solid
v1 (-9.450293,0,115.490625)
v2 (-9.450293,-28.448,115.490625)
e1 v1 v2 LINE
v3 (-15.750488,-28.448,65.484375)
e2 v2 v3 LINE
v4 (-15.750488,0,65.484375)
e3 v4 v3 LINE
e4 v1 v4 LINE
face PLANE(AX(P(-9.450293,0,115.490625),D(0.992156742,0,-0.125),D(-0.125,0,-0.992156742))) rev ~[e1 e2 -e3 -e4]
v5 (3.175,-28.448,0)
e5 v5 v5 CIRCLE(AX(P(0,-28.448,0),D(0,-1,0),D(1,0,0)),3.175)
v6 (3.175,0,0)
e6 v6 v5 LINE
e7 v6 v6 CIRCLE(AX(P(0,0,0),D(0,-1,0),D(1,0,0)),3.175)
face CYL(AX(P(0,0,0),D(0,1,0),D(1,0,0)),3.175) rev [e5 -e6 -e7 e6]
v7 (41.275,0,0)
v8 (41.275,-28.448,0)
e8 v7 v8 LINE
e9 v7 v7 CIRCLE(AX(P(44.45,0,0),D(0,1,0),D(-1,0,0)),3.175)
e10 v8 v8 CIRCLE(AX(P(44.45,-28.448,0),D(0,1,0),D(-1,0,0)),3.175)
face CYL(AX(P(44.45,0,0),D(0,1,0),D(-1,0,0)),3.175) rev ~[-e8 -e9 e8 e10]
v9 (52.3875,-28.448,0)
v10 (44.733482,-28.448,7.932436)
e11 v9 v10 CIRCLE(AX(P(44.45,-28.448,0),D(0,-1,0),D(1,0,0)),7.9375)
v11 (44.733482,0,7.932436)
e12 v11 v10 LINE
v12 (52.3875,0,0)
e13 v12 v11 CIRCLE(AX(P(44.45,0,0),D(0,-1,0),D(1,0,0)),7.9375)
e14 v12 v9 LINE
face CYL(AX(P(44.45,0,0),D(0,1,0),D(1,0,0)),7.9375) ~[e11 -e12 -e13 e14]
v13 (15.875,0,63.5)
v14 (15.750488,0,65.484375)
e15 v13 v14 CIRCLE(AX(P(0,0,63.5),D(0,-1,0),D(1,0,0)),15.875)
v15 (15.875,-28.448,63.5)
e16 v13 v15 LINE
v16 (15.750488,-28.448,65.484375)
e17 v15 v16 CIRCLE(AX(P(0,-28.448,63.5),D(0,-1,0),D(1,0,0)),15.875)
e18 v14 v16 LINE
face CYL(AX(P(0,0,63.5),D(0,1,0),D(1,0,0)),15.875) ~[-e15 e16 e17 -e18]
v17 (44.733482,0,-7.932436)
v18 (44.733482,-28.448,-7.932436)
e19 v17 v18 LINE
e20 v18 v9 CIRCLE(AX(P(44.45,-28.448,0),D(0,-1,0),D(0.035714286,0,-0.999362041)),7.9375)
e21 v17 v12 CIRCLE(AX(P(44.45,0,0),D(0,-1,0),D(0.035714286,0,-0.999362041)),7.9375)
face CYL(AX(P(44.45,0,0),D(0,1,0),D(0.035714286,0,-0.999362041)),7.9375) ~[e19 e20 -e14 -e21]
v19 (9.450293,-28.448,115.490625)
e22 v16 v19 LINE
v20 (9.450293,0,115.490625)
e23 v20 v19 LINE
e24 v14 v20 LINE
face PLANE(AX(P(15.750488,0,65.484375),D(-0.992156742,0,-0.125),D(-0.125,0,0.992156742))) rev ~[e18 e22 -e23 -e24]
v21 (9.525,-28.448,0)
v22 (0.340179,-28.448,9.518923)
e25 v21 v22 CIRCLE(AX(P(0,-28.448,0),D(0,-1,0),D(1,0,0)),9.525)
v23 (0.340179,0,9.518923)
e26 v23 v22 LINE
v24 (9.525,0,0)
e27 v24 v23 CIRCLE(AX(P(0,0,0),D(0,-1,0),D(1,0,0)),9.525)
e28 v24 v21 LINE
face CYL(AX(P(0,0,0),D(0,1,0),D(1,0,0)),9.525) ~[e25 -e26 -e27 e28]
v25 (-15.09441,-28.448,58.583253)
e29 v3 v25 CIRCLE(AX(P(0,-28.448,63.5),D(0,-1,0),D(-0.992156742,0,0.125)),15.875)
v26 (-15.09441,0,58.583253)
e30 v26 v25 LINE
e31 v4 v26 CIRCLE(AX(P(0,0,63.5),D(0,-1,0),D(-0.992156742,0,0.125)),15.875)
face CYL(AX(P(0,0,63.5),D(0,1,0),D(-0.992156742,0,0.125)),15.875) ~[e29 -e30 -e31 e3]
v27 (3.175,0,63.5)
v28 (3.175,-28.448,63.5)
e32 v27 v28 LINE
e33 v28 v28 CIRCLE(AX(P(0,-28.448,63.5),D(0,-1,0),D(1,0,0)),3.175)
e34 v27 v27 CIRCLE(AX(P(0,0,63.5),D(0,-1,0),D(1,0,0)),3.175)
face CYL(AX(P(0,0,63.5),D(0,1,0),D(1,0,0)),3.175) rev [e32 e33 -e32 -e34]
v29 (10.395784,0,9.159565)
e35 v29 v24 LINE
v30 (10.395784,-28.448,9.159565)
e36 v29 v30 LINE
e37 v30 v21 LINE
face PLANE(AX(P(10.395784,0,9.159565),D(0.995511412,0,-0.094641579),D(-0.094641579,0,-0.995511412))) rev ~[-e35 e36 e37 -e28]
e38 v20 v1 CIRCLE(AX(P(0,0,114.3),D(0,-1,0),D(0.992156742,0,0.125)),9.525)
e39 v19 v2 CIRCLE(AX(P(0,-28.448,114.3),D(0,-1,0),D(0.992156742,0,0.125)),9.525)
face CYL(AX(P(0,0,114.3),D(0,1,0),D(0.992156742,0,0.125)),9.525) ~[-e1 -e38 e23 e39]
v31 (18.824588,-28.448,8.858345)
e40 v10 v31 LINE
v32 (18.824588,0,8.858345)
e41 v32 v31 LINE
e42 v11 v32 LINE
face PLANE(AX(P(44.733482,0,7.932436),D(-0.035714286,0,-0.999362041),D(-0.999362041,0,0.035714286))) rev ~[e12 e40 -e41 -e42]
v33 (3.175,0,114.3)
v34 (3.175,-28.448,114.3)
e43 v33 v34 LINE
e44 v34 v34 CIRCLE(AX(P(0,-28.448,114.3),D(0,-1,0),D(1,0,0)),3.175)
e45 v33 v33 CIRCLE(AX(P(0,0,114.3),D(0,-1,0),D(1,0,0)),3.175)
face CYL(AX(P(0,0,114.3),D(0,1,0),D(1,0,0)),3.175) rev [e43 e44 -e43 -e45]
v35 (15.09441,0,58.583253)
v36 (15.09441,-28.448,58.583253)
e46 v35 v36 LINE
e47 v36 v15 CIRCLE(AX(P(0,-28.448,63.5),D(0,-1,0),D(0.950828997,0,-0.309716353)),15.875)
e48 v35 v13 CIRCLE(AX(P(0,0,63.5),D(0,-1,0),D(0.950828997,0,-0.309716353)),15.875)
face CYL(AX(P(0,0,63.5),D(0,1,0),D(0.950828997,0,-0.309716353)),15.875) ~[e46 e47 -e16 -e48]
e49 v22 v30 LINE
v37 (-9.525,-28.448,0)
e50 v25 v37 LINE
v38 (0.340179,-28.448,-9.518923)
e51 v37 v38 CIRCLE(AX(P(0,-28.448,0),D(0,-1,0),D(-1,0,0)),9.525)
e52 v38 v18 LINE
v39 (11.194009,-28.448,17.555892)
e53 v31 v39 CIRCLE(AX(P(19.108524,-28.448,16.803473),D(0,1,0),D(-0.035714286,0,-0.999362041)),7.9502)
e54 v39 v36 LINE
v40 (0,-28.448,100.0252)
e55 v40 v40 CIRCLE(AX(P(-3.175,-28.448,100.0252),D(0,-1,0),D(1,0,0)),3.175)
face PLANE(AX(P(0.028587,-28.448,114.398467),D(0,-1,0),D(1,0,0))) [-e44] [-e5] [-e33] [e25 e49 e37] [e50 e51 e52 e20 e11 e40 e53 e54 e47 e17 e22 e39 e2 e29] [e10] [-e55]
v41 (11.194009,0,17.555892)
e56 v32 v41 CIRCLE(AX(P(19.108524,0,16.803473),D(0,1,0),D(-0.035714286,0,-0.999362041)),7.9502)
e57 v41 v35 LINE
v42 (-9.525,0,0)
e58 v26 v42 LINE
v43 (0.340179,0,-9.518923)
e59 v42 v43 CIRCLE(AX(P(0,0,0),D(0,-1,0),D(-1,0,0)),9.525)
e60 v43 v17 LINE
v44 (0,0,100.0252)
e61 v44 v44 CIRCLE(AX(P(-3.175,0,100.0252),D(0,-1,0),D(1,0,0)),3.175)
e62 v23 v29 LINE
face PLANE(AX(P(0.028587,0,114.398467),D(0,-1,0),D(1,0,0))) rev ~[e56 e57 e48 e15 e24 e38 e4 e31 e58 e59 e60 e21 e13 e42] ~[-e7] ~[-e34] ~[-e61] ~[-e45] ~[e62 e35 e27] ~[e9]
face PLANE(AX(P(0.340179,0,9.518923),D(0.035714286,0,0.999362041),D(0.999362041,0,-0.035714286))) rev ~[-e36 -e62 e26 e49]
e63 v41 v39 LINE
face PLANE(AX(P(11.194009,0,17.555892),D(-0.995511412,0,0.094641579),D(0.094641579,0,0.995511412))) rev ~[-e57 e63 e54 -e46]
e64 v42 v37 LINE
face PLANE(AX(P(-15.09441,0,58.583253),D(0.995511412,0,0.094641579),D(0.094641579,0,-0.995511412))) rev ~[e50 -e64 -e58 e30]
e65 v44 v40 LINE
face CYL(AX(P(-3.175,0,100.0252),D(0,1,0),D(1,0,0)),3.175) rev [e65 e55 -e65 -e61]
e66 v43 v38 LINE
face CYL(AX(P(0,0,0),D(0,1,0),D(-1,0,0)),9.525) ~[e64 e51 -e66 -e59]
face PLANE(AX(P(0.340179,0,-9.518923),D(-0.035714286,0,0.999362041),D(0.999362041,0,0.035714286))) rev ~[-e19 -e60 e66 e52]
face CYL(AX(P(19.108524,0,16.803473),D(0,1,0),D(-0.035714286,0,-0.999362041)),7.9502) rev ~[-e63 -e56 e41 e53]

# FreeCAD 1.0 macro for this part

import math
import FreeCAD as App
import Part
import Sketcher
from FreeCAD import Vector
Q = App.Units.Quantity

doc = App.newDocument("Part")
body = doc.addObject("PartDesign::Body", "Body")

sketch1 = body.newObject("Sketcher::SketchObject", "Sketch")
sketch1.AttachmentSupport = (doc.getObject("XZ_Plane"), [""])
sketch1.MapMode = "FlatFace"
sketch1.addGeometry([
    Part.ArcOfCircle(Part.Circle(Vector(0, 0, 0), Vector(0, 0, 1), 9.5), math.radians(180), math.radians(272)),
    Part.LineSegment(Vector(0.3, -9.5, 0), Vector(44.7, -7.9, 0)),
    Part.ArcOfCircle(Part.Circle(Vector(44.5, 0, 0), Vector(0, 0, 1), 7.9), math.radians(-88), math.radians(0)),
    Part.ArcOfCircle(Part.Circle(Vector(44.5, 0, 0), Vector(0, 0, 1), 7.9), math.radians(0), math.radians(88)),
    Part.LineSegment(Vector(44.7, 7.9, 0), Vector(18.8, 8.9, 0)),
    Part.ArcOfCircle(Part.Circle(Vector(19.1, 16.8, 0), Vector(0, 0, 1), 8), math.radians(175), math.radians(268)),
    Part.LineSegment(Vector(11.2, 17.6, 0), Vector(15.1, 58.6, 0)),
    Part.ArcOfCircle(Part.Circle(Vector(0, 63.5, 0), Vector(0, 0, 1), 15.9), math.radians(-18.04), math.radians(0)),
    Part.ArcOfCircle(Part.Circle(Vector(0, 63.5, 0), Vector(0, 0, 1), 15.9), math.radians(0), math.radians(7.18)),
    Part.LineSegment(Vector(15.8, 65.5, 0), Vector(9.5, 115.5, 0)),
    Part.ArcOfCircle(Part.Circle(Vector(0, 114.3, 0), Vector(0, 0, 1), 9.5), math.radians(7), math.radians(173)),
    Part.LineSegment(Vector(-9.5, 115.5, 0), Vector(-15.8, 65.5, 0)),
    Part.ArcOfCircle(Part.Circle(Vector(0, 63.5, 0), Vector(0, 0, 1), 15.9), math.radians(173), math.radians(198)),
    Part.LineSegment(Vector(-15.1, 58.6, 0), Vector(-9.5, 0, 0)),
    Part.Circle(Vector(0, 0, 0), Vector(0, 0, 1), 3.2),
    Part.LineSegment(Vector(10.4, 9.2, 0), Vector(9.5, 0, 0)),
    Part.ArcOfCircle(Part.Circle(Vector(0, 0, 0), Vector(0, 0, 1), 9.5), math.radians(0), math.radians(88)),
    Part.LineSegment(Vector(0.3, 9.5, 0), Vector(10.4, 9.2, 0)),
    Part.Circle(Vector(44.5, 0, 0), Vector(0, 0, 1), 3.2),
    Part.Circle(Vector(0, 63.5, 0), Vector(0, 0, 1), 3.2),
    Part.Circle(Vector(-3.2, 100, 0), Vector(0, 0, 1), 3.2),
    Part.Circle(Vector(0, 114.3, 0), Vector(0, 0, 1), 3.2),
], False)
sketch1.addConstraint([
    Sketcher.Constraint("Tangent", 0, 2, 1, 1),
    Sketcher.Constraint("Tangent", 1, 2, 2, 1),
    Sketcher.Constraint("Tangent", 2, 2, 3, 1),
    Sketcher.Constraint("Tangent", 3, 2, 4, 1),
    Sketcher.Constraint("Tangent", 4, 2, 5, 2),
    Sketcher.Constraint("Tangent", 5, 1, 6, 1),
    Sketcher.Constraint("Coincident", 6, 2, 7, 1),
    Sketcher.Constraint("Tangent", 7, 2, 8, 1),
    Sketcher.Constraint("Tangent", 8, 2, 9, 1),
    Sketcher.Constraint("Tangent", 9, 2, 10, 1),
    Sketcher.Constraint("Tangent", 10, 2, 11, 1),
    Sketcher.Constraint("Tangent", 11, 2, 12, 1),
    Sketcher.Constraint("Coincident", 12, 2, 13, 1),
    Sketcher.Constraint("Coincident", 13, 2, 0, 1),
    Sketcher.Constraint("Coincident", 15, 2, 16, 1),
    Sketcher.Constraint("Tangent", 16, 2, 17, 1),
    Sketcher.Constraint("Coincident", 17, 2, 15, 1),
    Sketcher.Constraint("Coincident", 0, 3, -1, 1),
    Sketcher.Constraint("Coincident", 14, 3, -1, 1),
    Sketcher.Constraint("Coincident", 16, 3, -1, 1),
    Sketcher.Constraint("Coincident", 12, 3, 7, 3),
    Sketcher.Constraint("Coincident", 18, 3, 2, 3),
    Sketcher.Constraint("Coincident", 19, 3, 7, 3),
    Sketcher.Constraint("Coincident", 21, 3, 10, 3),
    Sketcher.Constraint("Equal", 2, 3),
    Sketcher.Constraint("Equal", 7, 8),
    Sketcher.Constraint("Equal", 0, 10),
    Sketcher.Constraint("Equal", 8, 12),
    Sketcher.Constraint("Equal", 10, 16),
    Sketcher.Constraint("Equal", 14, 18),
    Sketcher.Constraint("Equal", 18, 19),
    Sketcher.Constraint("Equal", 19, 20),
    Sketcher.Constraint("Equal", 20, 21),
    Sketcher.Constraint("Symmetric", 9, 2, 10, 2, -2),
    Sketcher.Constraint("Symmetric", 1, 2, 3, 2, -1),
    Sketcher.Constraint("PointOnObject", 2, 2, -1),
    Sketcher.Constraint("PointOnObject", 13, 2, -1),
    Sketcher.Constraint("PointOnObject", 15, 2, -1),
    Sketcher.Constraint("Parallel", 6, 15),
    Sketcher.Constraint("Parallel", 4, 17),
    Sketcher.Constraint("Horizontal", 19, 3, 7, 2),
    Sketcher.Constraint("Horizontal", 6, 2, 12, 2),
    Sketcher.Constraint("Diameter", 14, Q("0.25 in")),
    Sketcher.Constraint("Radius", 0, Q("0.375 in")),
    Sketcher.Constraint("Radius", 2, Q("0.3125 in")),
    Sketcher.Constraint("Radius", 5, Q("0.313 in")),
    Sketcher.Constraint("Radius", 7, Q("0.625 in")),
    Sketcher.Constraint("DistanceY", 7, 3, 10, 3, Q("2 in")),
    Sketcher.Constraint("DistanceY", -1, 1, 7, 3, Q("2.5 in")),
    Sketcher.Constraint("DistanceX", -1, 1, 2, 3, Q("1.75 in")),
    Sketcher.Constraint("DistanceX", 20, 3, -1, 1, Q("0.125 in")),
    Sketcher.Constraint("DistanceY", -1, 1, 20, 3, Q("3.938 in")),
    Sketcher.Constraint("DistanceX", 5, 1, 6, 2, Q("3.900401 mm")),
    Sketcher.Constraint("DistanceX", -1, 1, 5, 1, Q("11.194009 mm")),
])
pad1 = body.newObject("PartDesign::Pad", "Pad")
pad1.Profile = sketch1
pad1.Length = Q("1.12 in")

doc.recompute()
